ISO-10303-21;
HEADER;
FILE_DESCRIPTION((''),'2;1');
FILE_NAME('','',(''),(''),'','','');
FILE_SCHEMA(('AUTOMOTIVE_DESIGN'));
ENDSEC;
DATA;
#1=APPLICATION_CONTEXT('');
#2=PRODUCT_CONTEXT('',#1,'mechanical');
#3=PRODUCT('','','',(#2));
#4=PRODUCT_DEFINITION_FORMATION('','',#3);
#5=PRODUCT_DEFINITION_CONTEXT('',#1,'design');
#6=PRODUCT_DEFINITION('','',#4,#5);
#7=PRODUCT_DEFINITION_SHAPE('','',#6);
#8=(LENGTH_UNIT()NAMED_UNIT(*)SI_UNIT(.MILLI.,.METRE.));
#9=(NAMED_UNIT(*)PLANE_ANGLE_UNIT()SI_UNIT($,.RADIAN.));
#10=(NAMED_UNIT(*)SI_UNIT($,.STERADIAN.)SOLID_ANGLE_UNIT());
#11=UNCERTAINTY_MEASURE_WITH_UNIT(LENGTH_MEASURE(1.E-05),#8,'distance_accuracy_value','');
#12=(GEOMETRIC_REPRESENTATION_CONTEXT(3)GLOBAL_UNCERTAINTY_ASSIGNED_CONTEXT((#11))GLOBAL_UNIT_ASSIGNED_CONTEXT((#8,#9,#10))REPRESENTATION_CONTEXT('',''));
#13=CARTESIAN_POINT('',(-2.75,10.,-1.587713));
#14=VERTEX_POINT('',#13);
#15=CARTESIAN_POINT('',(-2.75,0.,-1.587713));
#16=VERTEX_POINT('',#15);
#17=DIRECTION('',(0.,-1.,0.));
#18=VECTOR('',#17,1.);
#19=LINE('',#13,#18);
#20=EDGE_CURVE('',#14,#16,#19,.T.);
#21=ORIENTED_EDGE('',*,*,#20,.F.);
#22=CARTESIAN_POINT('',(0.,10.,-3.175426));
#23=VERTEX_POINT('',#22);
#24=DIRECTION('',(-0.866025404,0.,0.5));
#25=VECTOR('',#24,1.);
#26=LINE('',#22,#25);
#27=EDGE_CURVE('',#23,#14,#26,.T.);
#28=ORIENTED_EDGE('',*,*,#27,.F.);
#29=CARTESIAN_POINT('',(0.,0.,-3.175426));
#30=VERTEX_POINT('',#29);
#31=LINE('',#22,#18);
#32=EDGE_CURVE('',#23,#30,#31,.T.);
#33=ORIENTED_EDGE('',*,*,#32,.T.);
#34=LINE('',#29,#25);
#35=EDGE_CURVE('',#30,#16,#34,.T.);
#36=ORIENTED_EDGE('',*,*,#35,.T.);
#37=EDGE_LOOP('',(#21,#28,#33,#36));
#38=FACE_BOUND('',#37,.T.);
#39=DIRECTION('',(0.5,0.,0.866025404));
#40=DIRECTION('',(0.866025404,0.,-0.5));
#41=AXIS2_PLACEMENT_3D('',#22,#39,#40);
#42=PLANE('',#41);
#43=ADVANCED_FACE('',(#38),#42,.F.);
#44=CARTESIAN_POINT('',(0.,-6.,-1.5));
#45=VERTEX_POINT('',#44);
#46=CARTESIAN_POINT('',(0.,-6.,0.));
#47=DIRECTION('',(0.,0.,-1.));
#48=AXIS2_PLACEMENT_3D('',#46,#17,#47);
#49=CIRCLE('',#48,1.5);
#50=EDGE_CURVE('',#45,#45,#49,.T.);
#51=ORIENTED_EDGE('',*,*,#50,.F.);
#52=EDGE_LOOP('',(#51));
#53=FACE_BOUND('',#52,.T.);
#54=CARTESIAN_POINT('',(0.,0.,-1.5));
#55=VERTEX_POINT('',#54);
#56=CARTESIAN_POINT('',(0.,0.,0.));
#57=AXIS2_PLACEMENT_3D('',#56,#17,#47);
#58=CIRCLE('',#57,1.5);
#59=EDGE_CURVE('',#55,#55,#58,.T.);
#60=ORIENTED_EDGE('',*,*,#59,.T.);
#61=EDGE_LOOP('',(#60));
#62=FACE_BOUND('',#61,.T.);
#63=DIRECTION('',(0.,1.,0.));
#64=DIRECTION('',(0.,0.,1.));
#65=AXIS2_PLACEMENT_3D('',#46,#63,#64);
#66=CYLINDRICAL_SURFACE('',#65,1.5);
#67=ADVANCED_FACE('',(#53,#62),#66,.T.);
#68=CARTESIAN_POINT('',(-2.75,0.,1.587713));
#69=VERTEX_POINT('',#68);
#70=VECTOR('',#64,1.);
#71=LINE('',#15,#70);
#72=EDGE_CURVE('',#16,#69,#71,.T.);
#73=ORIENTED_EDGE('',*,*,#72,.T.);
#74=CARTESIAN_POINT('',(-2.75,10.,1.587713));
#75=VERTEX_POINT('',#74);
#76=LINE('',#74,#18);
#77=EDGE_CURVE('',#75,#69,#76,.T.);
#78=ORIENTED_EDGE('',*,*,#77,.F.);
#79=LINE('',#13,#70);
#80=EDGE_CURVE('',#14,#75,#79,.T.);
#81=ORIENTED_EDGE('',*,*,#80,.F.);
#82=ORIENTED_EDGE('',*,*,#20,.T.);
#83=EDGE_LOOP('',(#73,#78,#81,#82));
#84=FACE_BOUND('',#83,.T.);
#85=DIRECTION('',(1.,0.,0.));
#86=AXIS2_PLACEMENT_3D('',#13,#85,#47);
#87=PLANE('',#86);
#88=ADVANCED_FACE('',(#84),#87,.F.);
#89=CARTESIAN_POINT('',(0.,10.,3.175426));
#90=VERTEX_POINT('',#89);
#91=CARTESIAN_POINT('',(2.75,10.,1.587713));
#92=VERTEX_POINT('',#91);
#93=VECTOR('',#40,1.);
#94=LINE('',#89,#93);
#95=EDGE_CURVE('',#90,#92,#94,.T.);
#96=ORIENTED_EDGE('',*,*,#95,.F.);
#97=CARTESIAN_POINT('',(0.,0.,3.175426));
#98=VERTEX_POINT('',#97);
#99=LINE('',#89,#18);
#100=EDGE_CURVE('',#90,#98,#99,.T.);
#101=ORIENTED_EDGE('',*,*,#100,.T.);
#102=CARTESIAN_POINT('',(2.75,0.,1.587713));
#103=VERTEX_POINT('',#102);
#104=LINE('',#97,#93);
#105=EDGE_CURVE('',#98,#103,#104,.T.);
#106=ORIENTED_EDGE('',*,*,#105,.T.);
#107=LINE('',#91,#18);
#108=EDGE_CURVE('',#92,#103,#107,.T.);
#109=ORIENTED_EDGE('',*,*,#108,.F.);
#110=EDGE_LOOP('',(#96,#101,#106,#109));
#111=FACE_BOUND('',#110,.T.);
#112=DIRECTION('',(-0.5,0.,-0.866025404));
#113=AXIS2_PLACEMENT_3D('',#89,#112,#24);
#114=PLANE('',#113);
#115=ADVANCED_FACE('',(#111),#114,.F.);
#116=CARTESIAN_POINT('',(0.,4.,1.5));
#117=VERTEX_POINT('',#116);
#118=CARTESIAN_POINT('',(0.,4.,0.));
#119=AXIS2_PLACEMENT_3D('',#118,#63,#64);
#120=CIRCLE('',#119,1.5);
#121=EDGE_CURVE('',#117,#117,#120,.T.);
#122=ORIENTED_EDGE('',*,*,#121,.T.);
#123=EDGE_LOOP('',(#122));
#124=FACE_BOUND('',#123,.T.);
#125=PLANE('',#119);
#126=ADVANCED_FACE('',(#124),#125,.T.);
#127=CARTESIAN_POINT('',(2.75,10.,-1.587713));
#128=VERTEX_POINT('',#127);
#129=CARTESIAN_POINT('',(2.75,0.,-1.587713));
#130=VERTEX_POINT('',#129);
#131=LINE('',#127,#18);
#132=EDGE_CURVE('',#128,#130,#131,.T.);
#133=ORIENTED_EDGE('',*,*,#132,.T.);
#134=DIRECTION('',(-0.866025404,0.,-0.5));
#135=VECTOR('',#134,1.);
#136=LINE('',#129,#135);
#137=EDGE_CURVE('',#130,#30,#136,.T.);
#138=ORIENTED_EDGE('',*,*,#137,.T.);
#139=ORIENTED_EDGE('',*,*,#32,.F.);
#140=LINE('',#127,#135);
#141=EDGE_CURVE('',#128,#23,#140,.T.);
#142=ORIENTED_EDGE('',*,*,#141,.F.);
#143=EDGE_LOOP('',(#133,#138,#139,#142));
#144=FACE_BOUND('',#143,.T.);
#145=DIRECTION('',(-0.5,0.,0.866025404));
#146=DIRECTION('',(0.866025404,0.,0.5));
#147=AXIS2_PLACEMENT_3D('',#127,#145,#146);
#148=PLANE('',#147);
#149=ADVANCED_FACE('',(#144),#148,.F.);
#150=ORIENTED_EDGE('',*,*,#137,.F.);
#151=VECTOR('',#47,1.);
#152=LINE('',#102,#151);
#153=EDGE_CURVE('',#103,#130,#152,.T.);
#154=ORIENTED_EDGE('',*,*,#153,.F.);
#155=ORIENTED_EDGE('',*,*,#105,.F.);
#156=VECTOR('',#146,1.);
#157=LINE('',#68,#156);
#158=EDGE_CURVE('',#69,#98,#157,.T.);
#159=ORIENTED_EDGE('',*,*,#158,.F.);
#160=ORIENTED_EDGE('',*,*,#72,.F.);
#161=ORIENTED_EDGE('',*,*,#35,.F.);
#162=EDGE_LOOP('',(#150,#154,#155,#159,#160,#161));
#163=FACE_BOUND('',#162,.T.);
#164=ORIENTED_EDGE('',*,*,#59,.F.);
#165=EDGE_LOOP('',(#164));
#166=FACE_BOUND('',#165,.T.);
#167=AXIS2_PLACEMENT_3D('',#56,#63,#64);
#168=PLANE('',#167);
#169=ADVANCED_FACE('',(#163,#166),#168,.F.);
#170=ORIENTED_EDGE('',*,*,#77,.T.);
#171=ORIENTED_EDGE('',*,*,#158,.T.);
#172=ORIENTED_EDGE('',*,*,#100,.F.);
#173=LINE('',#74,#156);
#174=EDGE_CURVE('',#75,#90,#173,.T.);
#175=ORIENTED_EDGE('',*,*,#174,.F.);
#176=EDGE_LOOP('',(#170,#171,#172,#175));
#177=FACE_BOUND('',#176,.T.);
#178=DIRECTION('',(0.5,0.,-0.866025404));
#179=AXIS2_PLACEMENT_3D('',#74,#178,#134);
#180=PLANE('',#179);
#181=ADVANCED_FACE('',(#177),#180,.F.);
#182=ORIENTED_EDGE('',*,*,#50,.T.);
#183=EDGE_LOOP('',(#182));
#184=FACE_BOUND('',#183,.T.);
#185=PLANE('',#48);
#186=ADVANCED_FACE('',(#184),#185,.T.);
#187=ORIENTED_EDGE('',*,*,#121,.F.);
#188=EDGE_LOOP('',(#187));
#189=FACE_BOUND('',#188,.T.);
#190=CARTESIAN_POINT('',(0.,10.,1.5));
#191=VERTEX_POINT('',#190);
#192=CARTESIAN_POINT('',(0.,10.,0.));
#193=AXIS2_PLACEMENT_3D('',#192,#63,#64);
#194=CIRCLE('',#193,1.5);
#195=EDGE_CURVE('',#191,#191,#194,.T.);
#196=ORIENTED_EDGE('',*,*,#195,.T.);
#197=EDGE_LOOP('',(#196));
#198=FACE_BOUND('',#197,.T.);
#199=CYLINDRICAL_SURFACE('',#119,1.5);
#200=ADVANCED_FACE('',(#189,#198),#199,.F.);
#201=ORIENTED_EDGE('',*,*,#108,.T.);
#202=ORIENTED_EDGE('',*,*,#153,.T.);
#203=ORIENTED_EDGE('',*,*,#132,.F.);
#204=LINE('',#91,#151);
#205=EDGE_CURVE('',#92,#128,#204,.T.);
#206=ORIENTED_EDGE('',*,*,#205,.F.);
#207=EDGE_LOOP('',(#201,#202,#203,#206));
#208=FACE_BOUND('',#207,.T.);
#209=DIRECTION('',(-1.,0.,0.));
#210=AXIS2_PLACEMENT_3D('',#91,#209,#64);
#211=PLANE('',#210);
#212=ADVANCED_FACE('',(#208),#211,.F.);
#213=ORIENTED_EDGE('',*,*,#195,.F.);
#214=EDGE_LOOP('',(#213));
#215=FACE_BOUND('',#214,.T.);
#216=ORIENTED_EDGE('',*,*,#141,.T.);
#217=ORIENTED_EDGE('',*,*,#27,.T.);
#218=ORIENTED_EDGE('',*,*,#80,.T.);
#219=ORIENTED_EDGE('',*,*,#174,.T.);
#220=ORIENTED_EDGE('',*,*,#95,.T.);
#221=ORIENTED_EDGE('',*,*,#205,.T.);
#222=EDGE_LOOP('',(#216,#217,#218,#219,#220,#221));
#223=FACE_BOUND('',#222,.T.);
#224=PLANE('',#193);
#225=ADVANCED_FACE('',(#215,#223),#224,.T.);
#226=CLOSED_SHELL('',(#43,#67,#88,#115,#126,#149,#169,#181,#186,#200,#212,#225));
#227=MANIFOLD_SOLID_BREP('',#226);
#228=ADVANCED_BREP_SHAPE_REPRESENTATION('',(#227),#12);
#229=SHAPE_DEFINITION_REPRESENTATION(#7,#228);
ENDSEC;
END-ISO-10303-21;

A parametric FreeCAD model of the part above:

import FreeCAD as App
import Part
import Sketcher
from FreeCAD import Vector
Q = App.Units.Quantity


def add_polygon(sketch, points):
    """Adds a closed chain of lines whose ends are joined by coincident constraints."""
    first, n = sketch.GeometryCount, len(points)
    for a, b in zip(points, points[1:] + points[:1]):
        sketch.addGeometry(Part.LineSegment(App.Vector(*a, 0), App.Vector(*b, 0)), False)
    for i in range(n):
        sketch.addConstraint(Sketcher.Constraint("Coincident", first + i, 2, first + (i + 1) % n, 1))

doc = App.newDocument("Part")
body = doc.addObject("PartDesign::Body", "Body")

# Sketch on XZ plane
sketch1 = doc.addObject("Sketcher::SketchObject", "Sketch")
body.addObject(sketch1)
sketch1.AttachmentSupport = (doc.XZ_Plane, [""])
sketch1.MapMode = "FlatFace"
add_polygon(sketch1, [(0, -3.175426), (-2.75, -1.587713), (-2.75, 1.587713), (0, 3.175426), (2.75, 1.587713), (2.75, -1.587713)])  # lines 0-5
sketch1.addConstraint(Sketcher.Constraint("Vertical", 1))
sketch1.addConstraint(Sketcher.Constraint("Vertical", 4))
sketch1.addConstraint(Sketcher.Constraint("Symmetric", 0, 2, 3, 2, -1, 1))
sketch1.addConstraint(Sketcher.Constraint("Symmetric", 2, 2, 5, 2, -1, 1))
sketch1.addConstraint(Sketcher.Constraint("PointOnObject", 2, 2, -2))
sketch1.addConstraint(Sketcher.Constraint("Parallel", 2, 5))
sketch1.addConstraint(Sketcher.Constraint("Horizontal", 1, 2, 3, 2))
sketch1.addConstraint(Sketcher.Constraint("Angle", 0, Q("150 deg")))
sketch1.addConstraint(Sketcher.Constraint("DistanceX", 1, 2, 3, 2, 5.5))
sketch1.addConstraint(Sketcher.Constraint("DistanceY", 1, 1, 1, 2, 3.175426))
pad1 = doc.addObject("PartDesign::Pad", "Pad")
body.addObject(pad1)
pad1.Profile = sketch1
pad1.Length = 10
pad1.Reversed = True

# Sketch on XZ plane
sketch2 = doc.addObject("Sketcher::SketchObject", "Sketch001")
body.addObject(sketch2)
sketch2.AttachmentSupport = (doc.XZ_Plane, [""])
sketch2.MapMode = "FlatFace"
sketch2.addGeometry(Part.Circle(Vector(0, 0, 0), Vector(0, 0, 1), 1.5), False)
sketch2.addConstraint(Sketcher.Constraint("Coincident", 0, 3, -1, 1))
sketch2.addConstraint(Sketcher.Constraint("Diameter", 0, 3.0))
pad2 = doc.addObject("PartDesign::Pad", "Pad001")
body.addObject(pad2)
pad2.Profile = sketch2
pad2.Length = 6

# Sketch on XZ plane
sketch3 = doc.addObject("Sketcher::SketchObject", "Sketch002")
body.addObject(sketch3)
sketch3.AttachmentSupport = (doc.XZ_Plane, [""])
sketch3.MapMode = "FlatFace"
sketch3.AttachmentOffset = App.Placement(Vector(0, 0, -10), App.Rotation())
sketch3.addGeometry(Part.Circle(Vector(0, 0, 0), Vector(0, 0, 1), 1.5), False)
sketch3.addConstraint(Sketcher.Constraint("Coincident", 0, 3, -1, 1))
sketch3.addConstraint(Sketcher.Constraint("Diameter", 0, 3.0))
pocket1 = doc.addObject("PartDesign::Pocket", "Pocket")
body.addObject(pocket1)
pocket1.Profile = sketch3
pocket1.Length = 6
pocket1.Reversed = True

doc.recompute()
